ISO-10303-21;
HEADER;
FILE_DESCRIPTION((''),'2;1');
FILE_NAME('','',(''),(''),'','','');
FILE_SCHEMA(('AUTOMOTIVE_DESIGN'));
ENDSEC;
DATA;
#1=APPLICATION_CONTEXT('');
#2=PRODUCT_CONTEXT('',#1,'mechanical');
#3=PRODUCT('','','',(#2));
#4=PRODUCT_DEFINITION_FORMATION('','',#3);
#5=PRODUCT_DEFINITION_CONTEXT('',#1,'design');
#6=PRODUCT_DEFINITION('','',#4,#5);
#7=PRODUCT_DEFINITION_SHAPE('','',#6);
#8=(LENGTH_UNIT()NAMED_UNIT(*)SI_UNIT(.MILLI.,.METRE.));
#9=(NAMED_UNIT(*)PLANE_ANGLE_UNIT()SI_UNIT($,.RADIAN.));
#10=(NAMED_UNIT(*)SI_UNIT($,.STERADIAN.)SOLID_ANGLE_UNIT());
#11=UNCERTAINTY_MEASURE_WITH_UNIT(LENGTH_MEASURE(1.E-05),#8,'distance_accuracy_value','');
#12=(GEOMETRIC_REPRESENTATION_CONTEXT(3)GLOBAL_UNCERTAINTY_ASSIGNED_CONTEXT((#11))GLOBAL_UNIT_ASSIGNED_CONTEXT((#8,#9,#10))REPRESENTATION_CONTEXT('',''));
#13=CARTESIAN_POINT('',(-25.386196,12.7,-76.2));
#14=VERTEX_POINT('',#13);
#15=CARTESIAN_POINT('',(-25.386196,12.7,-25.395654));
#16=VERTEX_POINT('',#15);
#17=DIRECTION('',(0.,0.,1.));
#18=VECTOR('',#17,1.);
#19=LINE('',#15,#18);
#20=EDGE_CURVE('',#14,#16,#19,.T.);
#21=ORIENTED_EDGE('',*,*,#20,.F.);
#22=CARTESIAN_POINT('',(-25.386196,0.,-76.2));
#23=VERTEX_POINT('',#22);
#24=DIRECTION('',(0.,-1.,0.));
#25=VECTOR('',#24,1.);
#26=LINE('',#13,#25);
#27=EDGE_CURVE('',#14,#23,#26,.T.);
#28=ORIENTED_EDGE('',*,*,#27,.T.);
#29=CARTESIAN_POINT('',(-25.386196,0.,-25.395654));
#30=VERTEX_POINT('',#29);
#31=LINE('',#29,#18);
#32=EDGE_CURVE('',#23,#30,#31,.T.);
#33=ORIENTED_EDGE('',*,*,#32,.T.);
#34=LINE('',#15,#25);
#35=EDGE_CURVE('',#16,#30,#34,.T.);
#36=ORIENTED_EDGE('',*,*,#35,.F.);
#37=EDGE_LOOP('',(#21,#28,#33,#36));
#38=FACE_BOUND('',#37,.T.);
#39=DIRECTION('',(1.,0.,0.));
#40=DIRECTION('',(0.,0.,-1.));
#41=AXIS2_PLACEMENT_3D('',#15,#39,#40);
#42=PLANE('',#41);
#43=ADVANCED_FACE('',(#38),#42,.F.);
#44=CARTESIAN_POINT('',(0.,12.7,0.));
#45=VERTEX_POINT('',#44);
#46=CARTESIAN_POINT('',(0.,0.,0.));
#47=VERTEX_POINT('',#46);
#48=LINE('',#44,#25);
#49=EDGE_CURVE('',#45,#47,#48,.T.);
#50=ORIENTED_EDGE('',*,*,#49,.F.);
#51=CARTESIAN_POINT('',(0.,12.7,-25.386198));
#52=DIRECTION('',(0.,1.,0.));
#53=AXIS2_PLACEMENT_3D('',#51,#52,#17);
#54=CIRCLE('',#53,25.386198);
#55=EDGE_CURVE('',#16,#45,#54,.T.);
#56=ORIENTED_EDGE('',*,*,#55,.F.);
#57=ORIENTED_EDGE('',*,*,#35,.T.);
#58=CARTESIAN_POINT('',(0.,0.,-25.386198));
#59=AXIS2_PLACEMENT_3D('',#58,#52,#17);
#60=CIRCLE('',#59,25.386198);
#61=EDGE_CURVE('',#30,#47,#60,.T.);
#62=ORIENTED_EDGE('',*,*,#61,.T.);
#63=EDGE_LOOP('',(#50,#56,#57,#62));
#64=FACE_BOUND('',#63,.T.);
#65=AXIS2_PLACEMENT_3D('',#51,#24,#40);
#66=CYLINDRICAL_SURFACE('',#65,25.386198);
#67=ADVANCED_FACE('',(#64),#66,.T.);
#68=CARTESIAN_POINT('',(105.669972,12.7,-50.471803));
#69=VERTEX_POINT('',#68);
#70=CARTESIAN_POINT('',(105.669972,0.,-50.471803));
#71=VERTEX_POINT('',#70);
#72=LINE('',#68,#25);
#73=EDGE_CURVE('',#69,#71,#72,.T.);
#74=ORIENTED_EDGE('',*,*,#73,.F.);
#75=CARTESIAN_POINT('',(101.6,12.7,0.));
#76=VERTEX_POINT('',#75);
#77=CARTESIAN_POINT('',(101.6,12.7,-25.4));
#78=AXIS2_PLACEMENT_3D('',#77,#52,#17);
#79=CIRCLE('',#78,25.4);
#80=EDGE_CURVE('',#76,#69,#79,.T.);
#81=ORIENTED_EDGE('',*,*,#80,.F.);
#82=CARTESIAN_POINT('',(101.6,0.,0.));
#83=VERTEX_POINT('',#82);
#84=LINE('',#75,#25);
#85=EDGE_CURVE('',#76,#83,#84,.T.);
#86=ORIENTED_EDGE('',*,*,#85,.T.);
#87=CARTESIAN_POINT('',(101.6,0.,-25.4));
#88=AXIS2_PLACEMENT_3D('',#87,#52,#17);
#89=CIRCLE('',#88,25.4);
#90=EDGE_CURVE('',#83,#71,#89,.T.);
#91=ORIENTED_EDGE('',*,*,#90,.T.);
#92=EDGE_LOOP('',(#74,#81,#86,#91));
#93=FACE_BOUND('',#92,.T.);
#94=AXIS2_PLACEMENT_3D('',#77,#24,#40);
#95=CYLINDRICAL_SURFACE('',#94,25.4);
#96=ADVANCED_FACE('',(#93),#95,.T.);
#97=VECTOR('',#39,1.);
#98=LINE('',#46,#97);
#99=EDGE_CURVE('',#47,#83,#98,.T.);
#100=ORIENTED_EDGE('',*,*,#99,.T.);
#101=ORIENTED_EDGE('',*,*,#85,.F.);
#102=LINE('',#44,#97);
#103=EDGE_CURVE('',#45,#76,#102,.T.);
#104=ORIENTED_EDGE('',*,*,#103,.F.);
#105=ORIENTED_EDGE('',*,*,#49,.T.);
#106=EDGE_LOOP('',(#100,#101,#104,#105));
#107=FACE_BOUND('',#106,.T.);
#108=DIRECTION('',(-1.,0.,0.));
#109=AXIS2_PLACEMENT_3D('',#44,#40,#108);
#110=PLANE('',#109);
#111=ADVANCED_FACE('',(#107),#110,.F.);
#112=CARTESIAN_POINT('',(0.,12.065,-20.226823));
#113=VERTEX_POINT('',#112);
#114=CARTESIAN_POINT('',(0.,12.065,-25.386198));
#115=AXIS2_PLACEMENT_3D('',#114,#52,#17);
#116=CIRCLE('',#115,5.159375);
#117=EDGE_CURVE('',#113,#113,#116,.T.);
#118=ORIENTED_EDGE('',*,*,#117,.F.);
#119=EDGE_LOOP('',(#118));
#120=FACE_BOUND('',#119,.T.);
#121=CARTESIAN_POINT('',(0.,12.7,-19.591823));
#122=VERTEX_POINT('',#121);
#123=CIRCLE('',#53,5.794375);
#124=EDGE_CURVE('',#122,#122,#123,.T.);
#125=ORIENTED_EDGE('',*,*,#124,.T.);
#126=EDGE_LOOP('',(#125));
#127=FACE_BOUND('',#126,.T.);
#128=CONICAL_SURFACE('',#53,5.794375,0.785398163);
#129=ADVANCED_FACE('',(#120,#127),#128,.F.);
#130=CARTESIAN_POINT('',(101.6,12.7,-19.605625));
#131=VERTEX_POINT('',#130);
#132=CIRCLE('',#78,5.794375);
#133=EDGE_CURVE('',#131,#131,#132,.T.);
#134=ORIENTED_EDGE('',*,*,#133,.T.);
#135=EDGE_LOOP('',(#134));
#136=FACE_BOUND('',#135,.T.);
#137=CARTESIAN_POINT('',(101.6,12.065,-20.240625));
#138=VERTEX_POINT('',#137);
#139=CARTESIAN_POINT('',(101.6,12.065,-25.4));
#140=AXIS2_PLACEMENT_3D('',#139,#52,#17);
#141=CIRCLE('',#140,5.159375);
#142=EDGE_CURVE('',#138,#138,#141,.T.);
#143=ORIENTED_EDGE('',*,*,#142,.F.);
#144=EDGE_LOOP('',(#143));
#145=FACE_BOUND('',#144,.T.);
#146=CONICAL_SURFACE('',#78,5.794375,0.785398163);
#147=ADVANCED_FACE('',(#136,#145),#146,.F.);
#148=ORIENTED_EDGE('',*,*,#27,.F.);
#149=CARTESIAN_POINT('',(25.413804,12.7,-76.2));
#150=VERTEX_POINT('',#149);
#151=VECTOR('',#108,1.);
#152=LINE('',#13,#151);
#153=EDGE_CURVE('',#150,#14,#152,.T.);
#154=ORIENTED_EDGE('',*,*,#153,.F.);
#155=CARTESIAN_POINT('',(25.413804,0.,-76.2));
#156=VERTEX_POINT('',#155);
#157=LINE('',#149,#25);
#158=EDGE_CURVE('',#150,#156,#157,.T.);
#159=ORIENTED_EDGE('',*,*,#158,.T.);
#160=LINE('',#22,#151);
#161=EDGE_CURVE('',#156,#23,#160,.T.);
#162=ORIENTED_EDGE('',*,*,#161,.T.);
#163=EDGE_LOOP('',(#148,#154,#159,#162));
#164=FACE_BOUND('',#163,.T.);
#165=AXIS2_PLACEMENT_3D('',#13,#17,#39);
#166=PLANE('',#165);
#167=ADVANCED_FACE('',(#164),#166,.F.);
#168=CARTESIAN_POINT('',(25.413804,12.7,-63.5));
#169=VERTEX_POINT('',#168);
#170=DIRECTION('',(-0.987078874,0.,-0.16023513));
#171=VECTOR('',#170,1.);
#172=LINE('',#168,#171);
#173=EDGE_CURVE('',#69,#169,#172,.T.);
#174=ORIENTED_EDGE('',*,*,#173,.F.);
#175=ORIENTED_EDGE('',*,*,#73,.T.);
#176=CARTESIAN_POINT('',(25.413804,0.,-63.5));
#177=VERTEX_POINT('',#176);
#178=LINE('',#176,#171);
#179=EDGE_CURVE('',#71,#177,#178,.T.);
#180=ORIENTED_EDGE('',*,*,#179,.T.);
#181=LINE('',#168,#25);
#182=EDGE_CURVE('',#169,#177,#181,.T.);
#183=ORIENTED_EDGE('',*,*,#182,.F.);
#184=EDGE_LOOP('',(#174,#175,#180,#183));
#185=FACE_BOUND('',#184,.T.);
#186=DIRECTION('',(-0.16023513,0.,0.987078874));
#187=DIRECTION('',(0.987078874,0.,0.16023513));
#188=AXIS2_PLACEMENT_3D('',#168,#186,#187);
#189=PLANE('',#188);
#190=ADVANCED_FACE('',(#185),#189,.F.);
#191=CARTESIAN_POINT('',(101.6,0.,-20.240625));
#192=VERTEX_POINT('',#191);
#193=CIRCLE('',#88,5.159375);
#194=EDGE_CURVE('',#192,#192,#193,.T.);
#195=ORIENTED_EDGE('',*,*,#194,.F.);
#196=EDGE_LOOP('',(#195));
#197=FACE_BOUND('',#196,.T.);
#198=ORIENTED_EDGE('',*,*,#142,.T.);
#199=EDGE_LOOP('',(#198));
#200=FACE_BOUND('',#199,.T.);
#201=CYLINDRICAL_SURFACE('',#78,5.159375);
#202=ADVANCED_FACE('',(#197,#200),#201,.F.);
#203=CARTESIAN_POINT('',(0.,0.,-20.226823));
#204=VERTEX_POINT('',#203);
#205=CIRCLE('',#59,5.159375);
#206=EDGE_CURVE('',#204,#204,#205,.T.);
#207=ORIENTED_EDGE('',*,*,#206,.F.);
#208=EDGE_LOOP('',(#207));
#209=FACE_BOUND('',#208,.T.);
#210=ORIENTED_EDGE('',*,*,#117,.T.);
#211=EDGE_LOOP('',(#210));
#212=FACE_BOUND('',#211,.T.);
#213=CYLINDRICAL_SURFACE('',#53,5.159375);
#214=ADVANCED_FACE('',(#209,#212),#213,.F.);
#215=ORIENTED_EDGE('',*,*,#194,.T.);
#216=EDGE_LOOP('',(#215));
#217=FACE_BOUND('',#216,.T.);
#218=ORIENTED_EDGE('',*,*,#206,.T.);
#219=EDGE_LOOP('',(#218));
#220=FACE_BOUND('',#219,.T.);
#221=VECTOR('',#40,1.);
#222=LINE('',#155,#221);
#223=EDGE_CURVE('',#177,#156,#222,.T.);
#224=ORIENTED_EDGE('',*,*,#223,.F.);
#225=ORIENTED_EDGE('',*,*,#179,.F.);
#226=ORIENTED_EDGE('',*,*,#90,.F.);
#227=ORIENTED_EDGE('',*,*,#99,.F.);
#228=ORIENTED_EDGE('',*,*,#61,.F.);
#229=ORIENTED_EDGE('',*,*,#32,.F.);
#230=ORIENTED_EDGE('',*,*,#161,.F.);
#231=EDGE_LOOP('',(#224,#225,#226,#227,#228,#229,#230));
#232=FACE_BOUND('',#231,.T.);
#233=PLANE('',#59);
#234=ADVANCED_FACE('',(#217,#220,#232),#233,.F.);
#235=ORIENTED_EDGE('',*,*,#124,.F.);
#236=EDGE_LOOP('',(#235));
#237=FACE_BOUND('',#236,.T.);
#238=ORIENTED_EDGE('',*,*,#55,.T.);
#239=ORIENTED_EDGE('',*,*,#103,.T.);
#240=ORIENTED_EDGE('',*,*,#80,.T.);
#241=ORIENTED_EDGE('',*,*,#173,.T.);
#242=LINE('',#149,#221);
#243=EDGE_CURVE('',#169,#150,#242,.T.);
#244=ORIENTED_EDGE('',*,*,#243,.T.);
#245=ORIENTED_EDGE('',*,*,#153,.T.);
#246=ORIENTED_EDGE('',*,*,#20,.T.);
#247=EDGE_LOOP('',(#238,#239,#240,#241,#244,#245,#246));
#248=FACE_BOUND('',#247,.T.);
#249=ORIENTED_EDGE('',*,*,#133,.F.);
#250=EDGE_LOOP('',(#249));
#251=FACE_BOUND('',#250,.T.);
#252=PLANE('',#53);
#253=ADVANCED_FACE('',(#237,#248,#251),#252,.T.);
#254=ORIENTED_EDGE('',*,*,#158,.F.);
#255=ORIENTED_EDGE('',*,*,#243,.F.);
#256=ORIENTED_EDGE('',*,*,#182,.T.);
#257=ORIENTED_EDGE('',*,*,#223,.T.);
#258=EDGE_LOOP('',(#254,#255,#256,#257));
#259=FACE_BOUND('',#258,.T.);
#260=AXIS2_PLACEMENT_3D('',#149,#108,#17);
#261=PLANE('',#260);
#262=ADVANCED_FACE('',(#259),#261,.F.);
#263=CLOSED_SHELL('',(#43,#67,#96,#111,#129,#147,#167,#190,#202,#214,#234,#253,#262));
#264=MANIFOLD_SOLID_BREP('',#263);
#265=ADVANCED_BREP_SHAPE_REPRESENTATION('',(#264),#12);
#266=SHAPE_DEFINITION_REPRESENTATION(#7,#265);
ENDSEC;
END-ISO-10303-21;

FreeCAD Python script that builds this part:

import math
import FreeCAD as App
import Part
import Sketcher
Q = App.Units.Quantity

doc = App.newDocument("Part")
body = doc.addObject("PartDesign::Body", "Body")

# Sketch on XZ plane
sketch1 = body.newObject("Sketcher::SketchObject", "Sketch")
sketch1.AttachmentSupport = (doc.getObject("XZ_Plane"), [""])
sketch1.MapMode = "FlatFace"
sketch1.addGeometry([
    Part.LineSegment(App.Vector(0, 0, 0), App.Vector(101.6, 0, 0)),  # 0
    Part.ArcOfCircle(Part.Circle(App.Vector(101.6, -25.4, 0), App.Vector(0, 0, 1), 25.4), math.radians(-80.779456), math.radians(90)),  # 1
    Part.LineSegment(App.Vector(105.669972, -50.471803, 0), App.Vector(25.413804, -63.5, 0)),  # 2
    Part.LineSegment(App.Vector(25.413804, -63.5, 0), App.Vector(25.413804, -76.2, 0)),  # 3
    Part.LineSegment(App.Vector(25.413804, -76.2, 0), App.Vector(-25.386196, -76.2, 0)),  # 4
    Part.LineSegment(App.Vector(-25.386196, -76.2, 0), App.Vector(-25.386196, -25.395654, 0)),  # 5
    Part.ArcOfCircle(Part.Circle(App.Vector(0, -25.386198, 0), App.Vector(0, 0, 1), 25.386198), math.radians(90), math.radians(180.021341)),  # 6
], False)
sketch1.addConstraint([
    Sketcher.Constraint("Tangent", 0, 2, 1, 2),
    Sketcher.Constraint("Tangent", 1, 1, 2, 1),
    Sketcher.Constraint("Coincident", 2, 2, 3, 1),
    Sketcher.Constraint("Coincident", 3, 2, 4, 1),
    Sketcher.Constraint("Coincident", 4, 2, 5, 1),
    Sketcher.Constraint("Coincident", 5, 2, 6, 2),
    Sketcher.Constraint("Tangent", 6, 1, 0, 1),
    Sketcher.Constraint("Horizontal", 0),
    Sketcher.Constraint("Vertical", 3),
    Sketcher.Constraint("Horizontal", 4),
    Sketcher.Constraint("Vertical", 5),
    Sketcher.Constraint("Coincident", 6, 1, -1, 1),
    Sketcher.Constraint("Radius", 1, Q("1 in")),
    Sketcher.Constraint("DistanceX", 0, 1, 0, 2, Q("4 in")),
    Sketcher.Constraint("DistanceX", 4, 2, 4, 1, Q("2 in")),
    Sketcher.Constraint("DistanceY", 3, 2, 3, 1, Q("0.5 in")),
    Sketcher.Constraint("DistanceY", 3, 2, -1, 1, Q("3 in")),
    Sketcher.Constraint("Radius", 6, 25.386198),
    Sketcher.Constraint("DistanceY", 5, 1, 5, 2, 50.804346),
])
pad1 = body.newObject("PartDesign::Pad", "Pad")
pad1.Profile = sketch1
pad1.Length = Q("0.5 in")
pad1.Reversed = True

# Sketch on XZ plane
sketch2 = body.newObject("Sketcher::SketchObject", "Sketch001")
sketch2.AttachmentSupport = (doc.getObject("XZ_Plane"), [""])
sketch2.MapMode = "FlatFace"
sketch2.AttachmentOffset = App.Placement(App.Vector(0, 0, -0.5 * 25.4), App.Rotation())
sketch2.addGeometry(Part.Circle(App.Vector(101.6, -25.4, 0), App.Vector(0, 0, 1), 5.159375), False)
sketch2.addConstraint([
    Sketcher.Constraint("Diameter", 0, Q("0.40625 in")),
    Sketcher.Constraint("DistanceX", -1, 1, 0, 3, Q("4 in")),
    Sketcher.Constraint("DistanceY", 0, 3, -1, 1, Q("1 in")),
])
doc.recompute()
hole = body.newObject("PartDesign::Hole", "Hole")
hole.Profile = sketch2
hole.ThreadType = "None"
hole.Diameter = Q("0.40625 in")
hole.DepthType = "ThroughAll"
hole.HoleCutType = "Countersink"
hole.HoleCutDiameter = 11.58875
hole.HoleCutCountersinkAngle = 90
hole.Reversed = True

# Sketch on XZ plane
sketch3 = body.newObject("Sketcher::SketchObject", "Sketch002")
sketch3.AttachmentSupport = (doc.getObject("XZ_Plane"), [""])
sketch3.MapMode = "FlatFace"
sketch3.AttachmentOffset = App.Placement(App.Vector(0, 0, -0.5 * 25.4), App.Rotation())
sketch3.addGeometry(Part.Circle(App.Vector(0, -25.386198, 0), App.Vector(0, 0, 1), 5.159375), False)
sketch3.addConstraint([
    Sketcher.Constraint("PointOnObject", 0, 3, -2),
    Sketcher.Constraint("Diameter", 0, Q("0.40625 in")),
    Sketcher.Constraint("DistanceY", 0, 3, -1, 1, 25.386198),
])
doc.recompute()
hole2 = body.newObject("PartDesign::Hole", "Hole001")
hole2.Profile = sketch3
hole2.ThreadType = "None"
hole2.Diameter = Q("0.40625 in")
hole2.DepthType = "ThroughAll"
hole2.HoleCutType = "Countersink"
hole2.HoleCutDiameter = 11.58875
hole2.HoleCutCountersinkAngle = 90
hole2.Reversed = True

doc.recompute()
